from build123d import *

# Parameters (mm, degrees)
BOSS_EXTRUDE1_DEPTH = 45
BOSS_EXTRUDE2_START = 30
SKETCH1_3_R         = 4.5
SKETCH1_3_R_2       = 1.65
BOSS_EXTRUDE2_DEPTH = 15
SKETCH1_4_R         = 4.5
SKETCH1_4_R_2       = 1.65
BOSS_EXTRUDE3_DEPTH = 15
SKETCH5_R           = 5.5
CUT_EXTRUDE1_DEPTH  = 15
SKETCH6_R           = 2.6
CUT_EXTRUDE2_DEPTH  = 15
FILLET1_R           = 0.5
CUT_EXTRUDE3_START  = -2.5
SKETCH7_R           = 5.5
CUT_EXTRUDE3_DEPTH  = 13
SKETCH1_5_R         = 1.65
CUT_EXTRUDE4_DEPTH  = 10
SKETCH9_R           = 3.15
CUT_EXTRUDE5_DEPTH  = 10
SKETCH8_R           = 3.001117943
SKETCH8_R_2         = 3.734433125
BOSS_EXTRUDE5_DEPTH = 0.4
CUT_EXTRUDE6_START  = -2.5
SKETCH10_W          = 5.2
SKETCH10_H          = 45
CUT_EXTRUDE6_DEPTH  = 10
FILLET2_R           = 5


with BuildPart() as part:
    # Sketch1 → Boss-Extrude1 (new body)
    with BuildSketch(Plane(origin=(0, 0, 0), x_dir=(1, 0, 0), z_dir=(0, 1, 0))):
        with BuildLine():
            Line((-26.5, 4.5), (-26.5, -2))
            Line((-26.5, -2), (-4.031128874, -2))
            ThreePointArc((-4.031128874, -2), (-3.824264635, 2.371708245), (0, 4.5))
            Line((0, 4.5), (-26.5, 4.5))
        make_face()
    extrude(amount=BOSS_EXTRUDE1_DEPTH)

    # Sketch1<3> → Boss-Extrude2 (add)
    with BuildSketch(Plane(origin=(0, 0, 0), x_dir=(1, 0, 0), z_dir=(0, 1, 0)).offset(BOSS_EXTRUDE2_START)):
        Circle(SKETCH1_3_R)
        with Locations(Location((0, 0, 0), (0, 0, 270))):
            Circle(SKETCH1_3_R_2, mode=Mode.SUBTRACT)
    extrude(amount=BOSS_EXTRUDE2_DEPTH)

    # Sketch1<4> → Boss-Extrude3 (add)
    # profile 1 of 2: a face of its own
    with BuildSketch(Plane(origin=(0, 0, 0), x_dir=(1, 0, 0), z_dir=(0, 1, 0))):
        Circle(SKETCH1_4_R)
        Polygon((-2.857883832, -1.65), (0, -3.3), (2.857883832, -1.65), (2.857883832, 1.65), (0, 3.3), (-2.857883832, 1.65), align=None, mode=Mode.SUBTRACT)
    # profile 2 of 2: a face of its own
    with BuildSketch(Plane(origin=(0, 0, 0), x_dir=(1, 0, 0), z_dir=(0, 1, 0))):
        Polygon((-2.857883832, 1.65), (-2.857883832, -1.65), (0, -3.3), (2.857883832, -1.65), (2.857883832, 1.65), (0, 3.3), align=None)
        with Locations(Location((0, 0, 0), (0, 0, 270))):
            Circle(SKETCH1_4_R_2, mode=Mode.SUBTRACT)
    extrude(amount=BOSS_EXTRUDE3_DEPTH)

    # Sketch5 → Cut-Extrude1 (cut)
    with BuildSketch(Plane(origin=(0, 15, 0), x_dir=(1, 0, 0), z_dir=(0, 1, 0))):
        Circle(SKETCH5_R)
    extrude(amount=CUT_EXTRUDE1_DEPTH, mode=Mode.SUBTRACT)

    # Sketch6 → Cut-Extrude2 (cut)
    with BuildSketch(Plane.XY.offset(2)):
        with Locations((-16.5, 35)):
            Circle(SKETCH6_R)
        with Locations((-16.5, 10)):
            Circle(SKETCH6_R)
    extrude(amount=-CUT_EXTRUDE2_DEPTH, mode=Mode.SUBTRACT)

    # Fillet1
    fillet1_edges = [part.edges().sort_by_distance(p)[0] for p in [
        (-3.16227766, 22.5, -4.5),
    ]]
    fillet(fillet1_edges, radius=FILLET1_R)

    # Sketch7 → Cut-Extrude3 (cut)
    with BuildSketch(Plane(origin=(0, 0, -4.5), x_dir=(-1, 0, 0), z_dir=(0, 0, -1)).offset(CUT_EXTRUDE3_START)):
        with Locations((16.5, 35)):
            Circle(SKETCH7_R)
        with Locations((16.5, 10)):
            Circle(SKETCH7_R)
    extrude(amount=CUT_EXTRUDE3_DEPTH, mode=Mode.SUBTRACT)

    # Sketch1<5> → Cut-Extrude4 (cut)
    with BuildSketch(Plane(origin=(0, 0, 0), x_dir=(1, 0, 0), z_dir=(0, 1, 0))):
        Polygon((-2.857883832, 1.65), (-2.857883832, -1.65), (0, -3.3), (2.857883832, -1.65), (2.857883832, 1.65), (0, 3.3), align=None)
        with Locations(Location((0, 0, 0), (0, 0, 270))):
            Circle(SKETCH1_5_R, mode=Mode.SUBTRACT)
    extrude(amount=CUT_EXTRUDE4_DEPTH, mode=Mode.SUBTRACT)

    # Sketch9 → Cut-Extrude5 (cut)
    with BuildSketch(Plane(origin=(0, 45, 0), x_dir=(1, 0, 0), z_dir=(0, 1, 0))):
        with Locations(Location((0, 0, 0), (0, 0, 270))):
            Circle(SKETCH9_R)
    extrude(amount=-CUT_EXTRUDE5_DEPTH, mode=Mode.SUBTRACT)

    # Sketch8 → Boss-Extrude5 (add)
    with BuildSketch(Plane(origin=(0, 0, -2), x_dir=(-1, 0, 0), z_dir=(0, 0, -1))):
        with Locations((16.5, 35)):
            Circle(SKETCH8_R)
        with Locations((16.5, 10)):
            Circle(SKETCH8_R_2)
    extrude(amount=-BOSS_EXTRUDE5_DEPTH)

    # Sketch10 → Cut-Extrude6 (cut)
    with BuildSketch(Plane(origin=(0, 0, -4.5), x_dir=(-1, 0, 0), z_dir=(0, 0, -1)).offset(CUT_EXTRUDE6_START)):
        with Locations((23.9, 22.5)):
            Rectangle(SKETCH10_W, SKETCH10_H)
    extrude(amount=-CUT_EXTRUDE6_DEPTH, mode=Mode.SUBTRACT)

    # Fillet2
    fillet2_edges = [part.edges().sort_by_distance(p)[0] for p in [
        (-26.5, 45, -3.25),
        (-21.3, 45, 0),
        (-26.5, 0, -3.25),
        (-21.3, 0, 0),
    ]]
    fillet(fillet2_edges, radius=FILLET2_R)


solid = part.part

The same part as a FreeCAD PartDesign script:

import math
import FreeCAD as App
import Part
import Sketcher

V = App.Vector
Q = App.Units.Quantity


def edges_at(feature, points):
    """Names of the edges that pass closest to the given points."""
    edges = feature.Shape.Edges
    near = lambda p: min(range(len(edges)), key=lambda i: edges[i].distToShape(Part.Vertex(*p))[0])
    return sorted({f"Edge{near(p) + 1}" for p in points})


def add_polygon(sketch, points):
    """Adds a closed chain of lines whose ends are joined by coincident constraints."""
    first, n = sketch.GeometryCount, len(points)
    for a, b in zip(points, points[1:] + points[:1]):
        sketch.addGeometry(Part.LineSegment(App.Vector(*a, 0), App.Vector(*b, 0)), False)
    for i in range(n):
        sketch.addConstraint(Sketcher.Constraint("Coincident", first + i, 2, first + (i + 1) % n, 1))

doc = App.newDocument("Part")
body = doc.addObject("PartDesign::Body", "Body")

# Sketch on XZ plane
sketch1 = body.newObject("Sketcher::SketchObject", "Sketch")
sketch1.AttachmentSupport = (doc.getObject("XZ_Plane"), [""])
sketch1.MapMode = "FlatFace"
sketch1.addGeometry([
    Part.LineSegment(V(-26.5, -4.5, 0), V(-26.5, 2, 0)),
    Part.LineSegment(V(-26.5, 2, 0), V(-4.031129, 2, 0)),
    Part.ArcOfCircle(Part.Circle(V(0, 0, 0), V(0, 0, 1), 4.5), math.radians(153.6122), math.radians(270)),
    Part.LineSegment(V(0, -4.5, 0), V(-26.5, -4.5, 0)),
], False)
sketch1.addConstraint([
    Sketcher.Constraint("Coincident", 0, 2, 1, 1),
    Sketcher.Constraint("Coincident", 1, 2, 2, 1),
    Sketcher.Constraint("Tangent", 2, 2, 3, 1),
    Sketcher.Constraint("Coincident", 3, 2, 0, 1),
    Sketcher.Constraint("Vertical", 0),
    Sketcher.Constraint("Horizontal", 1),
    Sketcher.Constraint("Horizontal", 3),
    Sketcher.Constraint("Coincident", 2, 3, -1, 1),
    Sketcher.Constraint("Radius", 2, Q("4.5 mm")),
    Sketcher.Constraint("DistanceX", 3, 2, 3, 1, Q("26.5 mm")),
    Sketcher.Constraint("DistanceY", 0, 1, 0, 2, Q("6.5 mm")),
])
pad1 = body.newObject("PartDesign::Pad", "Pad")
pad1.Profile = sketch1
pad1.Length = 45
pad1.Reversed = True

# Sketch on XZ plane
sketch2 = body.newObject("Sketcher::SketchObject", "Sketch001")
sketch2.AttachmentSupport = (doc.getObject("XZ_Plane"), [""])
sketch2.MapMode = "FlatFace"
sketch2.AttachmentOffset = App.Placement(V(0, 0, -30), App.Rotation())
sketch2.addGeometry([
    Part.Circle(V(0, 0, 0), V(0, 0, 1), 4.5),
    Part.Circle(V(0, 0, 0), V(0, 0, 1), 1.65),
], False)
sketch2.addConstraint([
    Sketcher.Constraint("Coincident", 0, 3, -1, 1),
    Sketcher.Constraint("Coincident", 1, 3, -1, 1),
    Sketcher.Constraint("Diameter", 0, Q("9 mm")),
    Sketcher.Constraint("Diameter", 1, Q("3.3 mm")),
])
pad2 = body.newObject("PartDesign::Pad", "Pad001")
pad2.Profile = sketch2
pad2.Length = 15
pad2.Reversed = True

# Sketch on XZ plane
sketch3 = body.newObject("Sketcher::SketchObject", "Sketch002")
sketch3.AttachmentSupport = (doc.getObject("XZ_Plane"), [""])
sketch3.MapMode = "FlatFace"
sketch3.addGeometry([
    Part.Circle(V(0, 0, 0), V(0, 0, 1), 4.5),
    Part.Circle(V(0, 0, 0), V(0, 0, 1), 1.65),
], False)
sketch3.addConstraint([
    Sketcher.Constraint("Coincident", 0, 3, -1, 1),
    Sketcher.Constraint("Coincident", 1, 3, -1, 1),
    Sketcher.Constraint("Diameter", 0, Q("9 mm")),
    Sketcher.Constraint("Diameter", 1, Q("3.3 mm")),
])
pad3 = body.newObject("PartDesign::Pad", "Pad002")
pad3.Profile = sketch3
pad3.Length = 15
pad3.Reversed = True

# Sketch on XZ plane
sketch4 = body.newObject("Sketcher::SketchObject", "Sketch003")
sketch4.AttachmentSupport = (doc.getObject("XZ_Plane"), [""])
sketch4.MapMode = "FlatFace"
sketch4.AttachmentOffset = App.Placement(V(0, 0, -15), App.Rotation())
sketch4.addGeometry(Part.Circle(V(0, 0, 0), V(0, 0, 1), 5.5), False)
sketch4.addConstraint([
    Sketcher.Constraint("Coincident", 0, 3, -1, 1),
    Sketcher.Constraint("Diameter", 0, Q("11 mm")),
])
pocket1 = body.newObject("PartDesign::Pocket", "Pocket")
pocket1.Profile = sketch4
pocket1.Length = 15

# Sketch on XY plane
sketch5 = body.newObject("Sketcher::SketchObject", "Sketch004")
sketch5.AttachmentSupport = (doc.getObject("XY_Plane"), [""])
sketch5.MapMode = "FlatFace"
sketch5.AttachmentOffset = App.Placement(V(0, 0, 2), App.Rotation())
sketch5.addGeometry([
    Part.Circle(V(-16.5, 35, 0), V(0, 0, 1), 2.6),
    Part.Circle(V(-16.5, 10, 0), V(0, 0, 1), 2.6),
], False)
sketch5.addConstraint([
    Sketcher.Constraint("Equal", 0, 1),
    Sketcher.Constraint("Vertical", 0, 3, 1, 3),
    Sketcher.Constraint("Diameter", 0, Q("5.2 mm")),
    Sketcher.Constraint("DistanceY", -1, 1, 0, 3, Q("35 mm")),
    Sketcher.Constraint("DistanceY", -1, 1, 1, 3, Q("10 mm")),
    Sketcher.Constraint("DistanceX", 0, 3, -1, 1, Q("16.5 mm")),
])
pocket2 = body.newObject("PartDesign::Pocket", "Pocket001")
pocket2.Profile = sketch5
pocket2.Length = 15
doc.recompute()

fillet = body.newObject("PartDesign::Fillet", "Fillet")
fillet.Base = (pocket2, edges_at(pocket2, [(-3.162, 22.5, -4.5)]))
fillet.Radius = 0.5

# Sketch on XY plane
sketch6 = body.newObject("Sketcher::SketchObject", "Sketch005")
sketch6.AttachmentSupport = (doc.getObject("XY_Plane"), [""])
sketch6.MapMode = "FlatFace"
sketch6.AttachmentOffset = App.Placement(V(0, 0, -2), App.Rotation())
sketch6.addGeometry([
    Part.Circle(V(-16.5, 35, 0), V(0, 0, 1), 5.5),
    Part.Circle(V(-16.5, 10, 0), V(0, 0, 1), 5.5),
], False)
sketch6.addConstraint([
    Sketcher.Constraint("Equal", 0, 1),
    Sketcher.Constraint("Vertical", 0, 3, 1, 3),
    Sketcher.Constraint("Diameter", 0, Q("11 mm")),
    Sketcher.Constraint("DistanceY", -1, 1, 0, 3, Q("35 mm")),
    Sketcher.Constraint("DistanceY", -1, 1, 1, 3, Q("10 mm")),
    Sketcher.Constraint("DistanceX", 0, 3, -1, 1, Q("16.5 mm")),
])
pocket3 = body.newObject("PartDesign::Pocket", "Pocket002")
pocket3.Profile = sketch6
pocket3.Length = 13

# Sketch on XZ plane
sketch7 = body.newObject("Sketcher::SketchObject", "Sketch006")
sketch7.AttachmentSupport = (doc.getObject("XZ_Plane"), [""])
sketch7.MapMode = "FlatFace"
add_polygon(sketch7, [(-2.857884, -1.65), (-2.857884, 1.65), (0, 3.3), (2.857884, 1.65), (2.857884, -1.65), (0, -3.3)])  # lines 0-5
sketch7.addGeometry(Part.Circle(V(0, 0, 0), V(0, 0, 1), 1.65), False)  # 6
sketch7.addConstraint([
    Sketcher.Constraint("Vertical", 0),
    Sketcher.Constraint("Vertical", 3),
    Sketcher.Constraint("Coincident", 6, 3, -1, 1),
    Sketcher.Constraint("Symmetric", 0, 2, 3, 2, -1, 1),
    Sketcher.Constraint("Symmetric", 1, 2, 4, 2, -1, 1),
    Sketcher.Constraint("PointOnObject", 1, 2, -2),
    Sketcher.Constraint("Parallel", 2, 5),
    Sketcher.Constraint("Horizontal", 0, 2, 2, 2),
    Sketcher.Constraint("Diameter", 6, Q("3.3 mm")),
    Sketcher.Constraint("Angle", 1, Q("30 deg")),
    Sketcher.Constraint("DistanceY", 0, 1, 0, 2, Q("3.3 mm")),
    Sketcher.Constraint("Distance", 1, Q("3.3 mm")),
])
pocket4 = body.newObject("PartDesign::Pocket", "Pocket003")
pocket4.Profile = sketch7
pocket4.Length = 10

# Sketch on XZ plane
sketch8 = body.newObject("Sketcher::SketchObject", "Sketch007")
sketch8.AttachmentSupport = (doc.getObject("XZ_Plane"), [""])
sketch8.MapMode = "FlatFace"
sketch8.AttachmentOffset = App.Placement(V(0, 0, -45), App.Rotation())
sketch8.addGeometry(Part.Circle(V(0, 0, 0), V(0, 0, 1), 3.15), False)
sketch8.addConstraint([
    Sketcher.Constraint("Coincident", 0, 3, -1, 1),
    Sketcher.Constraint("Diameter", 0, Q("6.3 mm")),
])
pocket5 = body.newObject("PartDesign::Pocket", "Pocket004")
pocket5.Profile = sketch8
pocket5.Length = 10
pocket5.Reversed = True

# Sketch on XY plane
sketch9 = body.newObject("Sketcher::SketchObject", "Sketch008")
sketch9.AttachmentSupport = (doc.getObject("XY_Plane"), [""])
sketch9.MapMode = "FlatFace"
sketch9.AttachmentOffset = App.Placement(V(0, 0, -2), App.Rotation())
sketch9.addGeometry([
    Part.Circle(V(-16.5, 35, 0), V(0, 0, 1), 3.001118),
    Part.Circle(V(-16.5, 10, 0), V(0, 0, 1), 3.734433),
], False)
sketch9.addConstraint([
    Sketcher.Constraint("Vertical", 0, 3, 1, 3),
    Sketcher.Constraint("DistanceY", -1, 1, 0, 3, Q("35 mm")),
    Sketcher.Constraint("DistanceY", -1, 1, 1, 3, Q("10 mm")),
    Sketcher.Constraint("DistanceX", 0, 3, -1, 1, Q("16.5 mm")),
    Sketcher.Constraint("Diameter", 0, Q("6.002236 mm")),
    Sketcher.Constraint("Diameter", 1, Q("7.468866 mm")),
])
pad4 = body.newObject("PartDesign::Pad", "Pad003")
pad4.Profile = sketch9
pad4.Length = 0.4

# Sketch on XY plane
sketch10 = body.newObject("Sketcher::SketchObject", "Sketch009")
sketch10.AttachmentSupport = (doc.getObject("XY_Plane"), [""])
sketch10.MapMode = "FlatFace"
sketch10.AttachmentOffset = App.Placement(V(0, 0, -2), App.Rotation())
add_polygon(sketch10, [(-21.3, 45), (-21.3, 0), (-26.5, 0), (-26.5, 45)])  # lines 0-3
sketch10.addConstraint([
    Sketcher.Constraint("Vertical", 0),
    Sketcher.Constraint("Horizontal", 1),
    Sketcher.Constraint("Vertical", 2),
    Sketcher.Constraint("Horizontal", 3),
    Sketcher.Constraint("PointOnObject", 0, 2, -1),
    Sketcher.Constraint("DistanceY", 0, 2, 0, 1, Q("45 mm")),
    Sketcher.Constraint("DistanceX", 1, 2, 1, 1, Q("5.2 mm")),
    Sketcher.Constraint("DistanceX", 0, 2, -1, 1, Q("21.3 mm")),
])
pocket6 = body.newObject("PartDesign::Pocket", "Pocket005")
pocket6.Profile = sketch10
pocket6.Length = 10
pocket6.Reversed = True
doc.recompute()

fillet2 = body.newObject("PartDesign::Fillet", "Fillet001")
fillet2.Base = (pocket6, edges_at(pocket6, [
    (-26.5, 45, -3.25),
    (-21.3, 45, 0),
    (-26.5, 0, -3.25),
    (-21.3, 0, 0),
]))
fillet2.Radius = 5

doc.recompute()
